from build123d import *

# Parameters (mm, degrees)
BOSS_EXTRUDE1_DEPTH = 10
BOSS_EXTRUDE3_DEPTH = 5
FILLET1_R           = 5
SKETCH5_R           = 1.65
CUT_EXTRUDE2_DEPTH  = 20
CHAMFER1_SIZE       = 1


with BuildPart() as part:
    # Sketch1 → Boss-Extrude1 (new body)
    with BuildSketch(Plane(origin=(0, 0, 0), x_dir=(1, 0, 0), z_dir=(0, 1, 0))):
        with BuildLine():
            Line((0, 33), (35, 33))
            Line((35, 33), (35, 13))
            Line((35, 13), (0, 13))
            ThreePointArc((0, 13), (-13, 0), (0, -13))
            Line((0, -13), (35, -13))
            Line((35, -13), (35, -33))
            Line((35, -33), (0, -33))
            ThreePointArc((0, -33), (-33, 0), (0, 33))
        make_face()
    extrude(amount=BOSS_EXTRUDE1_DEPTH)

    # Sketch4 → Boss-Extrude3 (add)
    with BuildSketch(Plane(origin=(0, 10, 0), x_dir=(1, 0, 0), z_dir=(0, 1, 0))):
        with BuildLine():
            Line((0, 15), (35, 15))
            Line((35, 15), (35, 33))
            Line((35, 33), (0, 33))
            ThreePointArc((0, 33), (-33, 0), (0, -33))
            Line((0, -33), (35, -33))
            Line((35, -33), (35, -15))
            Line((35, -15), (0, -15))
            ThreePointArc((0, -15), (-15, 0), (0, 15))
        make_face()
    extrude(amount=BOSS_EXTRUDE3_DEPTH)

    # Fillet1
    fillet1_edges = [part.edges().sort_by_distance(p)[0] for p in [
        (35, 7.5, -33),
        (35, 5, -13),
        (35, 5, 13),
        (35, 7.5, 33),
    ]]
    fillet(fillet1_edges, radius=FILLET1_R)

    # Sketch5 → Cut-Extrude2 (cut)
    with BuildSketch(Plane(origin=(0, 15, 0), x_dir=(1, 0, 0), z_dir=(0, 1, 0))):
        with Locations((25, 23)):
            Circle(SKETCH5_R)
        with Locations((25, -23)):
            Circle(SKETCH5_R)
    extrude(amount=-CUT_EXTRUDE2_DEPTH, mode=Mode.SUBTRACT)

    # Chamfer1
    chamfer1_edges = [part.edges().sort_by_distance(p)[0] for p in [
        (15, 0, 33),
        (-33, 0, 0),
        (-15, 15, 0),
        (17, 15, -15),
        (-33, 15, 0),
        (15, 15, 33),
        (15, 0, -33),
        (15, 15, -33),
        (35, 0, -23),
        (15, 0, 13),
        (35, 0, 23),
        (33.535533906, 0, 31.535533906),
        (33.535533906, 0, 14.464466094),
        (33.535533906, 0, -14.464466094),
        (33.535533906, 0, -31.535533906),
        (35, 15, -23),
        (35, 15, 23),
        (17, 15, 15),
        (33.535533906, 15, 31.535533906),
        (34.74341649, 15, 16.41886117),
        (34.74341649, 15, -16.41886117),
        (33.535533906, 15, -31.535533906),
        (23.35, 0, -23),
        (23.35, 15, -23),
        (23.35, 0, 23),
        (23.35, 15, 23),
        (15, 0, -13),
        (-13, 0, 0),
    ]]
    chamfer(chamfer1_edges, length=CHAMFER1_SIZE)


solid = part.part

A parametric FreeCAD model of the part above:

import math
import FreeCAD as App
import Part
import Sketcher

V = App.Vector
Q = App.Units.Quantity


def edges_at(feature, points):
    """Names of the edges that pass closest to the given points."""
    edges = feature.Shape.Edges
    near = lambda p: min(range(len(edges)), key=lambda i: edges[i].distToShape(Part.Vertex(*p))[0])
    return sorted({f"Edge{near(p) + 1}" for p in points})

doc = App.newDocument("Part")
body = doc.addObject("PartDesign::Body", "Body")

# Sketch on XZ plane
sketch1 = body.newObject("Sketcher::SketchObject", "Sketch")
sketch1.AttachmentSupport = (doc.getObject("XZ_Plane"), [""])
sketch1.MapMode = "FlatFace"
sketch1.addGeometry([
    Part.LineSegment(V(35, -33, 0), V(0, -33, 0)),  # 0
    Part.ArcOfCircle(Part.Circle(V(0, 0, 0), V(0, 0, 1), 33), math.radians(90), math.radians(270)),  # 1
    Part.LineSegment(V(0, 33, 0), V(35, 33, 0)),  # 2
    Part.LineSegment(V(35, 33, 0), V(35, 13, 0)),  # 3
    Part.LineSegment(V(35, 13, 0), V(0, 13, 0)),  # 4
    Part.ArcOfCircle(Part.Circle(V(0, 0, 0), V(0, 0, 1), 13), math.radians(90), math.radians(270)),  # 5
    Part.LineSegment(V(0, -13, 0), V(35, -13, 0)),  # 6
    Part.LineSegment(V(35, -13, 0), V(35, -33, 0)),  # 7
], False)
sketch1.addConstraint([
    Sketcher.Constraint("Tangent", 0, 2, 1, 2),
    Sketcher.Constraint("Tangent", 1, 1, 2, 1),
    Sketcher.Constraint("Coincident", 2, 2, 3, 1),
    Sketcher.Constraint("Coincident", 3, 2, 4, 1),
    Sketcher.Constraint("Tangent", 4, 2, 5, 1),
    Sketcher.Constraint("Tangent", 5, 2, 6, 1),
    Sketcher.Constraint("Coincident", 6, 2, 7, 1),
    Sketcher.Constraint("Coincident", 7, 2, 0, 1),
    Sketcher.Constraint("Horizontal", 0),
    Sketcher.Constraint("Horizontal", 2),
    Sketcher.Constraint("Vertical", 3),
    Sketcher.Constraint("Horizontal", 4),
    Sketcher.Constraint("Horizontal", 6),
    Sketcher.Constraint("Vertical", 7),
    Sketcher.Constraint("Coincident", 1, 3, -1, 1),
    Sketcher.Constraint("Coincident", 5, 3, -1, 1),
    Sketcher.Constraint("Vertical", 3, 2, 6, 2),
    Sketcher.Constraint("Radius", 1, Q("33 mm")),
    Sketcher.Constraint("Radius", 5, Q("13 mm")),
    Sketcher.Constraint("DistanceX", 0, 2, 0, 1, Q("35 mm")),
])
pad1 = body.newObject("PartDesign::Pad", "Pad")
pad1.Profile = sketch1
pad1.Length = 10
pad1.Reversed = True

# Sketch on XZ plane
sketch2 = body.newObject("Sketcher::SketchObject", "Sketch001")
sketch2.AttachmentSupport = (doc.getObject("XZ_Plane"), [""])
sketch2.MapMode = "FlatFace"
sketch2.AttachmentOffset = App.Placement(V(0, 0, -10), App.Rotation())
sketch2.addGeometry([
    Part.LineSegment(V(0, -15, 0), V(35, -15, 0)),  # 0
    Part.LineSegment(V(35, -15, 0), V(35, -33, 0)),  # 1
    Part.LineSegment(V(35, -33, 0), V(0, -33, 0)),  # 2
    Part.ArcOfCircle(Part.Circle(V(0, 0, 0), V(0, 0, 1), 33), math.radians(90), math.radians(270)),  # 3
    Part.LineSegment(V(0, 33, 0), V(35, 33, 0)),  # 4
    Part.LineSegment(V(35, 33, 0), V(35, 15, 0)),  # 5
    Part.LineSegment(V(35, 15, 0), V(0, 15, 0)),  # 6
    Part.ArcOfCircle(Part.Circle(V(0, 0, 0), V(0, 0, 1), 15), math.radians(90), math.radians(270)),  # 7
], False)
sketch2.addConstraint([
    Sketcher.Constraint("Coincident", 0, 2, 1, 1),
    Sketcher.Constraint("Coincident", 1, 2, 2, 1),
    Sketcher.Constraint("Tangent", 2, 2, 3, 2),
    Sketcher.Constraint("Tangent", 3, 1, 4, 1),
    Sketcher.Constraint("Coincident", 4, 2, 5, 1),
    Sketcher.Constraint("Coincident", 5, 2, 6, 1),
    Sketcher.Constraint("Tangent", 6, 2, 7, 1),
    Sketcher.Constraint("Tangent", 7, 2, 0, 1),
    Sketcher.Constraint("Horizontal", 0),
    Sketcher.Constraint("Vertical", 1),
    Sketcher.Constraint("Horizontal", 2),
    Sketcher.Constraint("Horizontal", 4),
    Sketcher.Constraint("Vertical", 5),
    Sketcher.Constraint("Horizontal", 6),
    Sketcher.Constraint("Coincident", 3, 3, -1, 1),
    Sketcher.Constraint("Coincident", 7, 3, -1, 1),
    Sketcher.Constraint("Vertical", 1, 2, 4, 2),
    Sketcher.Constraint("Radius", 3, Q("33 mm")),
    Sketcher.Constraint("Radius", 7, Q("15 mm")),
    Sketcher.Constraint("DistanceX", 0, 1, 0, 2, Q("35 mm")),
])
pad2 = body.newObject("PartDesign::Pad", "Pad001")
pad2.Profile = sketch2
pad2.Length = 5
pad2.Reversed = True
doc.recompute()

fillet = body.newObject("PartDesign::Fillet", "Fillet")
fillet.Base = (pad2, edges_at(pad2, [
    (35, 7.5, -33),
    (35, 5, -13),
    (35, 5, 13),
    (35, 7.5, 33),
]))
fillet.Radius = 5

# Sketch on XZ plane
sketch3 = body.newObject("Sketcher::SketchObject", "Sketch002")
sketch3.AttachmentSupport = (doc.getObject("XZ_Plane"), [""])
sketch3.MapMode = "FlatFace"
sketch3.AttachmentOffset = App.Placement(V(0, 0, -15), App.Rotation())
sketch3.addGeometry([
    Part.Circle(V(25, -23, 0), V(0, 0, 1), 1.6),
    Part.Circle(V(25, 23, 0), V(0, 0, 1), 1.6),
], False)
sketch3.addConstraint([
    Sketcher.Constraint("Equal", 0, 1),
    Sketcher.Constraint("Symmetric", 0, 3, 1, 3, -1),
    Sketcher.Constraint("Diameter", 0, Q("3.3 mm")),
    Sketcher.Constraint("DistanceX", -1, 1, 0, 3, Q("25 mm")),
    Sketcher.Constraint("DistanceY", 0, 3, -1, 1, Q("23 mm")),
])
pocket1 = body.newObject("PartDesign::Pocket", "Pocket")
pocket1.Profile = sketch3
pocket1.Length = 20
pocket1.Reversed = True
doc.recompute()

chamfer = body.newObject("PartDesign::Chamfer", "Chamfer")
chamfer.Base = (pocket1, edges_at(pocket1, [
    (15, 0, 33),
    (-33, 0, 0),
    (-15, 15, 0),
    (17, 15, -15),
    (-33, 15, 0),
    (15, 15, 33),
    (15, 0, -33),
    (15, 15, -33),
    (35, 0, -23),
    (15, 0, 13),
    (35, 0, 23),
    (33.536, 0, 31.536),
    (33.536, 0, 14.464),
    (33.536, 0, -14.464),
    (33.536, 0, -31.536),
    (35, 15, -23),
    (35, 15, 23),
    (17, 15, 15),
    (33.536, 15, 31.536),
    (34.743, 15, 16.419),
    (34.743, 15, -16.419),
    (33.536, 15, -31.536),
    (23.35, 0, -23),
    (23.35, 15, -23),
    (23.35, 0, 23),
    (23.35, 15, 23),
    (15, 0, -13),
    (-13, 0, 0),
]))
chamfer.Size = 1

doc.recompute()
